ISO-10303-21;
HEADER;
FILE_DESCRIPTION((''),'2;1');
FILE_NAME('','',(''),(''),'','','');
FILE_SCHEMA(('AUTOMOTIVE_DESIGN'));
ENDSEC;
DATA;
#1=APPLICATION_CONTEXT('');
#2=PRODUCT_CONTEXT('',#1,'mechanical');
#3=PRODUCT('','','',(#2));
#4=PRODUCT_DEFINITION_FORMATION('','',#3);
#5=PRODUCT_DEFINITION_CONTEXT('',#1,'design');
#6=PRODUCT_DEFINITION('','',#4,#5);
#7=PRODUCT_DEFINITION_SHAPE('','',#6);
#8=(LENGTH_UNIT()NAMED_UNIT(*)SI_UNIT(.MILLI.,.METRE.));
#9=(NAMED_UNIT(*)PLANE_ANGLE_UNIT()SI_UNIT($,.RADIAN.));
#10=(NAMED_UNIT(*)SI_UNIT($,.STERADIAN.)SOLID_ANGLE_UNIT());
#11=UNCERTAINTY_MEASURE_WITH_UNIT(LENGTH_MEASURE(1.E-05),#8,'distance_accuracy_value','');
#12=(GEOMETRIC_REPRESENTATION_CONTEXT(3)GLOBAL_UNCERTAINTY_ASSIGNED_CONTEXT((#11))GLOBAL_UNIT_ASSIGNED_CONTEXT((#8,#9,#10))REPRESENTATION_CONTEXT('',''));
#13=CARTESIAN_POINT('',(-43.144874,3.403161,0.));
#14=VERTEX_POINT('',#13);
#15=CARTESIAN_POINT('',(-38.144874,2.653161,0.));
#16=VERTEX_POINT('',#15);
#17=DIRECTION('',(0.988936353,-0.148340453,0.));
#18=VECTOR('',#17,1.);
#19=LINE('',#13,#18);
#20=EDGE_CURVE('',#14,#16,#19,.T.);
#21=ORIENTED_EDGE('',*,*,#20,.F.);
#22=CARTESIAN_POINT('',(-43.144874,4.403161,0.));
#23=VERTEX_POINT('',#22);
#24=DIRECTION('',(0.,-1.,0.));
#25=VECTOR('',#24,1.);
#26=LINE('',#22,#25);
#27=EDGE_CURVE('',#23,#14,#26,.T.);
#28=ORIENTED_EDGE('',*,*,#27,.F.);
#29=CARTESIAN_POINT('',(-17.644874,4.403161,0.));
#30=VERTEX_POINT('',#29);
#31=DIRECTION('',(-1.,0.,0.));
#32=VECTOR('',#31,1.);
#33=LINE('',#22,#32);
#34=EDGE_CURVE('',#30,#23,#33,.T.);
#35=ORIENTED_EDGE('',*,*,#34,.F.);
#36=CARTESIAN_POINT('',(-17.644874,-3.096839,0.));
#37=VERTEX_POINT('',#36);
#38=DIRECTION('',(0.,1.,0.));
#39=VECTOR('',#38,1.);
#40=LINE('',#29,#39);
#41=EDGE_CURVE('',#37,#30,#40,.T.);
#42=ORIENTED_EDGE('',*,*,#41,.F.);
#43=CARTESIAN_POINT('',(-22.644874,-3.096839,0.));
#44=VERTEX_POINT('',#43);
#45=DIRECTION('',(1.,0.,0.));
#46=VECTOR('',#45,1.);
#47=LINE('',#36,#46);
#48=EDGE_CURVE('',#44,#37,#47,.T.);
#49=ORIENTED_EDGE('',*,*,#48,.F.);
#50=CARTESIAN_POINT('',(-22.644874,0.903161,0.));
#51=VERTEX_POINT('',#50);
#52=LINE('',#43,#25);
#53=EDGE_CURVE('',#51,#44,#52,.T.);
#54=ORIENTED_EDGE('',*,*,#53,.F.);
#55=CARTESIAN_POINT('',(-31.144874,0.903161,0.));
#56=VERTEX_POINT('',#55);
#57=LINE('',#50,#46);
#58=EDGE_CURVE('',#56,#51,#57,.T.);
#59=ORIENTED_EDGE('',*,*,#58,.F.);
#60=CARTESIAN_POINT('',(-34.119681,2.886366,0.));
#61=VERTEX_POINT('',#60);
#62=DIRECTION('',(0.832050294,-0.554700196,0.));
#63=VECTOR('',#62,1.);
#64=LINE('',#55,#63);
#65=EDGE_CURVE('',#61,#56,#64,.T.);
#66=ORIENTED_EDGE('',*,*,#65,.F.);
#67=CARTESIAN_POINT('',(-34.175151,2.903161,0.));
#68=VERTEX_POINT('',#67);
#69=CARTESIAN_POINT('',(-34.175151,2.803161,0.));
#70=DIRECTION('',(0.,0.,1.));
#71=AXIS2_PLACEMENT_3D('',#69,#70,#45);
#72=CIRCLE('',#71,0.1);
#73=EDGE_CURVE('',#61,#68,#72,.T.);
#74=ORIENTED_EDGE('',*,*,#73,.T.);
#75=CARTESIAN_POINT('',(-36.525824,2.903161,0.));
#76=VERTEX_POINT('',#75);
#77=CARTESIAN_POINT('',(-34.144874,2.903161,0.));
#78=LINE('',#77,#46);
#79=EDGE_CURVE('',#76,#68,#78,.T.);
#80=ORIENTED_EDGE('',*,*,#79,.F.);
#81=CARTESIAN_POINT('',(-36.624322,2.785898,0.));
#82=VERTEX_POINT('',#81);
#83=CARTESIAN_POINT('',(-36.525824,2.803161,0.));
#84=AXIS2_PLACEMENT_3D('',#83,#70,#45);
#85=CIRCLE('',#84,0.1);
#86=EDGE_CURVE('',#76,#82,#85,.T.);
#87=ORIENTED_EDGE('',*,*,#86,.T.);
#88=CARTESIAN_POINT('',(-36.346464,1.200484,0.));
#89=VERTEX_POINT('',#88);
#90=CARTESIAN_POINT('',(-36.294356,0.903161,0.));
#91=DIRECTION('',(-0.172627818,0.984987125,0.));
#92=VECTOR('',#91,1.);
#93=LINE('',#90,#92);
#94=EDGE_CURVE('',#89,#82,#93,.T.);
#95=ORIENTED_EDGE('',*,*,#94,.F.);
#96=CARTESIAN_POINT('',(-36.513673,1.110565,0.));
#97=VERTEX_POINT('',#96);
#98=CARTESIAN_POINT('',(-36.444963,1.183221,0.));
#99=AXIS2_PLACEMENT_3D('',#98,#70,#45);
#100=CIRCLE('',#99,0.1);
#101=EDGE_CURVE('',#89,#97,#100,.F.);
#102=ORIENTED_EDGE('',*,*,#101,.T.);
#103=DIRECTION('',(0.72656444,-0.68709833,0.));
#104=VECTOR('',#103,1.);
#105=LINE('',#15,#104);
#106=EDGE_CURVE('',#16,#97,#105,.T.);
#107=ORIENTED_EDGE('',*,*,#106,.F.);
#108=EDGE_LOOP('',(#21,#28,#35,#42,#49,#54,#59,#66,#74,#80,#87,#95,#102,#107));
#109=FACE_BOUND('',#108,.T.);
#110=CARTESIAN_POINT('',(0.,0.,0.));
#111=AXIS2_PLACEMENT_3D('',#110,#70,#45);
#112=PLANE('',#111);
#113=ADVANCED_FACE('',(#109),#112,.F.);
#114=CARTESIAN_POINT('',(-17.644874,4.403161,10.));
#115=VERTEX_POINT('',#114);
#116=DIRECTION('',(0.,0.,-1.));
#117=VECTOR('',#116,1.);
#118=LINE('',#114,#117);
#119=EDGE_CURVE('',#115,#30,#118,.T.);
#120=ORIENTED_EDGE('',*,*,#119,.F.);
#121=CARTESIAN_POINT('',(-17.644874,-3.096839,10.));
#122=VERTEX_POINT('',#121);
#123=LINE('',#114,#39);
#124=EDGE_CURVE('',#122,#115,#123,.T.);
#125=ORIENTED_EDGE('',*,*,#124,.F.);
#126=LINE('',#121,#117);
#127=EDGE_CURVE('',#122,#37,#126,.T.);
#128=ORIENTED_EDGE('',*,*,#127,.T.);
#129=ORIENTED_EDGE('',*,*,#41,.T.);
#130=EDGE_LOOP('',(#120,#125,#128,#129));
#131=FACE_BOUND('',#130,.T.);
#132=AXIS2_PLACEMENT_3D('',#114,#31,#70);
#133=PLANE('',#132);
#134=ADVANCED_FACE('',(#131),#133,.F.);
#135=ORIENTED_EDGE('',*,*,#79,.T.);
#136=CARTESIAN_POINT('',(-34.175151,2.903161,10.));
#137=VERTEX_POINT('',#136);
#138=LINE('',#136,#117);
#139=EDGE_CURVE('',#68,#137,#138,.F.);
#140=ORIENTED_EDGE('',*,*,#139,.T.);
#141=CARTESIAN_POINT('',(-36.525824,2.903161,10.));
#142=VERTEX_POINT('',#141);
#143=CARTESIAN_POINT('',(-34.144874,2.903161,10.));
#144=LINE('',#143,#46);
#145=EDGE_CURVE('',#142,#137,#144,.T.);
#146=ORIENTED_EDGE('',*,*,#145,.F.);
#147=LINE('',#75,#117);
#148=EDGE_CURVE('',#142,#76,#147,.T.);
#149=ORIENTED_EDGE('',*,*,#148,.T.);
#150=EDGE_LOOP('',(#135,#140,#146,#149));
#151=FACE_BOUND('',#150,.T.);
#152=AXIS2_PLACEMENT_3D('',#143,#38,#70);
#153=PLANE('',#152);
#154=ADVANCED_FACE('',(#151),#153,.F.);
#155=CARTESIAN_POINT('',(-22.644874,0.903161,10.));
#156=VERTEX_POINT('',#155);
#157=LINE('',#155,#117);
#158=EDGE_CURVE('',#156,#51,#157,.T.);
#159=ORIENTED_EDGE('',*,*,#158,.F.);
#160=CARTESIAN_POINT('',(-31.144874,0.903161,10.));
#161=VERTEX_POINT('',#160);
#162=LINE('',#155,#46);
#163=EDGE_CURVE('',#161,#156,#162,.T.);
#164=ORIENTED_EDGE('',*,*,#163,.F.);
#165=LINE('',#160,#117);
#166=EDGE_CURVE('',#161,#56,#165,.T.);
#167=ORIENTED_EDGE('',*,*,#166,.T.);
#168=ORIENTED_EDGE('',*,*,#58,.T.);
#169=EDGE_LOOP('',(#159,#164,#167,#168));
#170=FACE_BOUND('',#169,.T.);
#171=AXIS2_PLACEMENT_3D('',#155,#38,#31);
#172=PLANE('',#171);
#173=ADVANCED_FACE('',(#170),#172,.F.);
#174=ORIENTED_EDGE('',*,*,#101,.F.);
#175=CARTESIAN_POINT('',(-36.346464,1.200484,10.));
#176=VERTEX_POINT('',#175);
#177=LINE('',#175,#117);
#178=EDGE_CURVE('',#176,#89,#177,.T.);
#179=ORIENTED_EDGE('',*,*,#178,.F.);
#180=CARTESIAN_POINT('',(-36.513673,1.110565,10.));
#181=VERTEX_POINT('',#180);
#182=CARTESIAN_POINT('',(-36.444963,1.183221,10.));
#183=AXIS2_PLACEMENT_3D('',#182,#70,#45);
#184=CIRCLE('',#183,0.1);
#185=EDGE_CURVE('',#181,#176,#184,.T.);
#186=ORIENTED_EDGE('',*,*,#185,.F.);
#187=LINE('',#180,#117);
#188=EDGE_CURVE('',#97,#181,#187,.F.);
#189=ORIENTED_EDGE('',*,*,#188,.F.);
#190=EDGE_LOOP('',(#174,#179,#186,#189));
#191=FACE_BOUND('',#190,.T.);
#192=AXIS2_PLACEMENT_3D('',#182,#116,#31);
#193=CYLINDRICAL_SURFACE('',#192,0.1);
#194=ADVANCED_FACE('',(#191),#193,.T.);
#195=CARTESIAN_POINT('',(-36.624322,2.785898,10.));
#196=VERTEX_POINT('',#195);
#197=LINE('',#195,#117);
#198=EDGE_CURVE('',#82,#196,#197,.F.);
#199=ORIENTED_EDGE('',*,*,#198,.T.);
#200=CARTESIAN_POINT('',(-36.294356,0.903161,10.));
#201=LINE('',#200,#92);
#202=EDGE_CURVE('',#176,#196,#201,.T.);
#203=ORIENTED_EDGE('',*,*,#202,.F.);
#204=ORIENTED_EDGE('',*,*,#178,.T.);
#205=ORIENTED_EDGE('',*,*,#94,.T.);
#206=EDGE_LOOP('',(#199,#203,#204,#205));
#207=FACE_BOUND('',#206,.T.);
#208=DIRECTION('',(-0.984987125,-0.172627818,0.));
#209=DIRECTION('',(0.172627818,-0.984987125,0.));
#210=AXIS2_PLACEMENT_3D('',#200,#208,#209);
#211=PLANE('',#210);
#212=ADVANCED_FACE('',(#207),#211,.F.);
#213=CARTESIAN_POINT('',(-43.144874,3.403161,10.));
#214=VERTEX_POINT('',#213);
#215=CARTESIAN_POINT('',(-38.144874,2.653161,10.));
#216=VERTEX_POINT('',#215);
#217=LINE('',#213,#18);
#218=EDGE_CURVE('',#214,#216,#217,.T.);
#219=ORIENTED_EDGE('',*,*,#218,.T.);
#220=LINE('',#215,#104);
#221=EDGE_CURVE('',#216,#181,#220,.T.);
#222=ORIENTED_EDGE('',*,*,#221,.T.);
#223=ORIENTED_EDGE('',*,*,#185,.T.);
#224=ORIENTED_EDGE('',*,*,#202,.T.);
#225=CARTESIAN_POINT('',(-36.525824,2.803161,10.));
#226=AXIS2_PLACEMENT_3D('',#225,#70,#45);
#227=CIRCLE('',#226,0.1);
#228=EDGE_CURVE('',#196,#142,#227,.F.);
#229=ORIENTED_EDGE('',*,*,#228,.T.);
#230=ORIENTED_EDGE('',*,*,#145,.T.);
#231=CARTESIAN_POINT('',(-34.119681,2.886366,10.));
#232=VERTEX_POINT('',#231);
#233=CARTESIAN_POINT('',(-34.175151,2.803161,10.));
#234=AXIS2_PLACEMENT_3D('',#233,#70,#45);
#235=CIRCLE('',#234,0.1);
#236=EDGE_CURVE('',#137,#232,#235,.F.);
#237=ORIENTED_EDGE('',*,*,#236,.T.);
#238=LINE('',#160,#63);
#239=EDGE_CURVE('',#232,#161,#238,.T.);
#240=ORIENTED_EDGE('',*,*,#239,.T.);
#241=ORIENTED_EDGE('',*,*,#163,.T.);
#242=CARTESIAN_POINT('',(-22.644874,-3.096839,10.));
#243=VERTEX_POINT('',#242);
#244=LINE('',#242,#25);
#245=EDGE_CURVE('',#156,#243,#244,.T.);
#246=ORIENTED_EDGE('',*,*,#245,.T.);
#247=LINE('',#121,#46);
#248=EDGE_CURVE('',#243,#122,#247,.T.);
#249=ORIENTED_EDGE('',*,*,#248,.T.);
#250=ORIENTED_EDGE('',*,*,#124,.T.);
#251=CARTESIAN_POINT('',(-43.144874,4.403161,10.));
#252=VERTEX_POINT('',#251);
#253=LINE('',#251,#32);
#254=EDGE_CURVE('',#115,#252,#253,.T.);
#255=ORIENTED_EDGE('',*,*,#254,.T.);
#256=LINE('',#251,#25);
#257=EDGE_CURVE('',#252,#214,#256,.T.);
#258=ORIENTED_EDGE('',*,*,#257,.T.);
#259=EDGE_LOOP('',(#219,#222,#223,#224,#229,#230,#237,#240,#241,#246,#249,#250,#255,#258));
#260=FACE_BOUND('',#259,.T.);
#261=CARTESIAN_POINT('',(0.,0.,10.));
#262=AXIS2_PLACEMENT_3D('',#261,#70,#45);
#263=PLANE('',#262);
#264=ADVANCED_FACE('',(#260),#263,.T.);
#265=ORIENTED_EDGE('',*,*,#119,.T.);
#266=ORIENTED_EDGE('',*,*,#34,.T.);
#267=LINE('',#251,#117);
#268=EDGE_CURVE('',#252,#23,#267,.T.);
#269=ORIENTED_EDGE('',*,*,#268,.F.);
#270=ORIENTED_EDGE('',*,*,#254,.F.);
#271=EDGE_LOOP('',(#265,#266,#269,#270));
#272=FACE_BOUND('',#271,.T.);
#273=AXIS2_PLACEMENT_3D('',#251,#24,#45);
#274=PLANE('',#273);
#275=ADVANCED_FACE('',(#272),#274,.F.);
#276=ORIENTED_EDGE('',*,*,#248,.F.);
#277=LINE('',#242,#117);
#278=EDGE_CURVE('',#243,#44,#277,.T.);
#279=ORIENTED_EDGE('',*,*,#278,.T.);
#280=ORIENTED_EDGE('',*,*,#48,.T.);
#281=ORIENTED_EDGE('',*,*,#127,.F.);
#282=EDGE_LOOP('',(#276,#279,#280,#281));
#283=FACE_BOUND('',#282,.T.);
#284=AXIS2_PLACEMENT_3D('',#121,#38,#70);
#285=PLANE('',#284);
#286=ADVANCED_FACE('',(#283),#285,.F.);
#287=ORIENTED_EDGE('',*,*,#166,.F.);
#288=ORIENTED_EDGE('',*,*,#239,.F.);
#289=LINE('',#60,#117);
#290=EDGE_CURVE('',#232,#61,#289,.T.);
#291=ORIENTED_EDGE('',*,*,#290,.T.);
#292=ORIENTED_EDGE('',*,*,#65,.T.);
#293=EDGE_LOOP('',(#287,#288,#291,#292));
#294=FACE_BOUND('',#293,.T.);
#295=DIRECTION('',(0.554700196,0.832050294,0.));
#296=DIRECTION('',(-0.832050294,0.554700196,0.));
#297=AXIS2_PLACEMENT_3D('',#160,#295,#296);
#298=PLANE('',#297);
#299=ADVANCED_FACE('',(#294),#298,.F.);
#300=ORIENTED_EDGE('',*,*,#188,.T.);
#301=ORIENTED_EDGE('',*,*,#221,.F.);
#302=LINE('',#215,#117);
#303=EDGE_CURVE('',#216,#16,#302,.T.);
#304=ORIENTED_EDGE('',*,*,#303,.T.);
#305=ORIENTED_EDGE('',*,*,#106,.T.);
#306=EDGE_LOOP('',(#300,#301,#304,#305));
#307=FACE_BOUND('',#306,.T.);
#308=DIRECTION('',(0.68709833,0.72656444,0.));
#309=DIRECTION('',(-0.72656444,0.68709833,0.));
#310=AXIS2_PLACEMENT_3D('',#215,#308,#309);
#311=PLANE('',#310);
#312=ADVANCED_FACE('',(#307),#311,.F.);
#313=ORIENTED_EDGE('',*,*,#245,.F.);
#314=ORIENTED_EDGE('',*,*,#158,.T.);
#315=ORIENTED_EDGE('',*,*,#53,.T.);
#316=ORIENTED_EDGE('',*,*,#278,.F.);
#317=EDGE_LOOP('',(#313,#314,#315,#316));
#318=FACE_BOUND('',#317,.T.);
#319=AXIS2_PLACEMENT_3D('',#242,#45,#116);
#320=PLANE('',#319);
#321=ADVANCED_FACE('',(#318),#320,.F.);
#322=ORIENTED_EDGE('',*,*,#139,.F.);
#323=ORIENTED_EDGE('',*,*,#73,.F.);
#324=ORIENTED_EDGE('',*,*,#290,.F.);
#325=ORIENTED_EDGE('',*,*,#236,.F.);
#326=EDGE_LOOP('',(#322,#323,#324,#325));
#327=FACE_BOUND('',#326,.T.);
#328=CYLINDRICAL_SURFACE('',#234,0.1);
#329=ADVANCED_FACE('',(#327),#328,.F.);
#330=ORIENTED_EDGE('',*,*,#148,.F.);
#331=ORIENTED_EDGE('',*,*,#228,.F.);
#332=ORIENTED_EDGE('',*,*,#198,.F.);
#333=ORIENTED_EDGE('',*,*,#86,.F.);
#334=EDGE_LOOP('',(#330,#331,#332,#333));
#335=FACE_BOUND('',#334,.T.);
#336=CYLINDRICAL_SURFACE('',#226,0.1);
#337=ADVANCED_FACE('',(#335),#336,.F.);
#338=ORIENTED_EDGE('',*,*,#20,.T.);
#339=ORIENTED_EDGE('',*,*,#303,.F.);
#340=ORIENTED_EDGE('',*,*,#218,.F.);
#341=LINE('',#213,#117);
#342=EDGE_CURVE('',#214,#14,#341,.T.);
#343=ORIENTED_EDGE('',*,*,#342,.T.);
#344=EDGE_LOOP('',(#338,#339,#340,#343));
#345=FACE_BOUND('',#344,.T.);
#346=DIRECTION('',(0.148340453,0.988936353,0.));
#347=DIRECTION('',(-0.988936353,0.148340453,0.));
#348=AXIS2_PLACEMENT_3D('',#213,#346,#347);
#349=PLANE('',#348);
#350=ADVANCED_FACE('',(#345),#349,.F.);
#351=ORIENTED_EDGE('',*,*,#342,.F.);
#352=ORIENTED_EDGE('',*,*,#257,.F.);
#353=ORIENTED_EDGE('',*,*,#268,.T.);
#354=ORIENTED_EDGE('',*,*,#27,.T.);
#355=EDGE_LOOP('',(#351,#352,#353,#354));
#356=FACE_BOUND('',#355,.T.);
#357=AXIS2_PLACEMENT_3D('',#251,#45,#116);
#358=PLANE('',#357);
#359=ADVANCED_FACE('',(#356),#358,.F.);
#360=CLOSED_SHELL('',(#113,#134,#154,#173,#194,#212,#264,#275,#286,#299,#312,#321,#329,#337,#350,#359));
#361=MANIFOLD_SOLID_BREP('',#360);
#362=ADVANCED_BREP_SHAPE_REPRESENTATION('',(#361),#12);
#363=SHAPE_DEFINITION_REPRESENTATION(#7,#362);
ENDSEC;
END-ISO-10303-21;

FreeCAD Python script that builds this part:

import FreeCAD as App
import Part
import Sketcher

V = App.Vector


def edges_at(feature, points):
    """Names of the edges that pass closest to the given points."""
    edges = feature.Shape.Edges
    near = lambda p: min(range(len(edges)), key=lambda i: edges[i].distToShape(Part.Vertex(*p))[0])
    return sorted({f"Edge{near(p) + 1}" for p in points})

doc = App.newDocument("Part")
body = doc.addObject("PartDesign::Body", "Body")

# Sketch on XY plane
sketch1 = doc.addObject("Sketcher::SketchObject", "Sketch")
body.addObject(sketch1)
sketch1.AttachmentSupport = (doc.XY_Plane, [""])
sketch1.MapMode = "FlatFace"
sketch1.addGeometry([
    Part.LineSegment(V(-22.6, -3.1, 0), V(-17.6, -3.1, 0)),  # 0
    Part.LineSegment(V(-17.6, -3.1, 0), V(-17.6, 4.4, 0)),  # 1
    Part.LineSegment(V(-17.6, 4.4, 0), V(-43.1, 4.4, 0)),  # 2
    Part.LineSegment(V(-43.1, 4.4, 0), V(-43.1, 3.4, 0)),  # 3
    Part.LineSegment(V(-43.1, 3.4, 0), V(-38.1, 2.7, 0)),  # 4
    Part.LineSegment(V(-38.1, 2.7, 0), V(-36.3, 0.9, 0)),  # 5
    Part.LineSegment(V(-36.3, 0.9, 0), V(-36.6, 2.9, 0)),  # 6
    Part.LineSegment(V(-36.6, 2.9, 0), V(-34.1, 2.9, 0)),  # 7
    Part.LineSegment(V(-34.1, 2.9, 0), V(-31.1, 0.9, 0)),  # 8
    Part.LineSegment(V(-31.1, 0.9, 0), V(-22.6, 0.9, 0)),  # 9
    Part.LineSegment(V(-22.6, 0.9, 0), V(-22.6, -3.1, 0)),  # 10
], False)
sketch1.addConstraint([
    Sketcher.Constraint("Coincident", 0, 2, 1, 1),
    Sketcher.Constraint("Coincident", 1, 2, 2, 1),
    Sketcher.Constraint("Coincident", 2, 2, 3, 1),
    Sketcher.Constraint("Coincident", 3, 2, 4, 1),
    Sketcher.Constraint("Coincident", 4, 2, 5, 1),
    Sketcher.Constraint("Coincident", 5, 2, 6, 1),
    Sketcher.Constraint("Coincident", 6, 2, 7, 1),
    Sketcher.Constraint("Coincident", 7, 2, 8, 1),
    Sketcher.Constraint("Coincident", 8, 2, 9, 1),
    Sketcher.Constraint("Coincident", 9, 2, 10, 1),
    Sketcher.Constraint("Coincident", 10, 2, 0, 1),
    Sketcher.Constraint("Horizontal", 0),
    Sketcher.Constraint("Vertical", 1),
    Sketcher.Constraint("Horizontal", 2),
    Sketcher.Constraint("Vertical", 3),
    Sketcher.Constraint("Horizontal", 7),
    Sketcher.Constraint("Horizontal", 9),
    Sketcher.Constraint("Vertical", 10),
    Sketcher.Constraint("Horizontal", 5, 2, 8, 2),
    Sketcher.Constraint("DistanceX", 0, 1, 0, 2, 5.0),
    Sketcher.Constraint("DistanceY", 3, 2, 3, 1, 1.0),
    Sketcher.Constraint("DistanceY", 10, 2, 10, 1, 4.0),
    Sketcher.Constraint("DistanceX", 2, 2, 2, 1, 25.5),
    Sketcher.Constraint("DistanceX", 7, 1, 7, 2, 2.5),
    Sketcher.Constraint("DistanceX", 9, 1, 9, 2, 8.5),
    Sketcher.Constraint("DistanceY", 1, 1, 1, 2, 7.5),
    Sketcher.Constraint("DistanceX", 3, 2, 4, 2, 5.0),
    Sketcher.Constraint("DistanceY", 5, 2, 6, 2, 2.0),
    Sketcher.Constraint("DistanceX", 6, 2, 1, 2, 19.0),
    Sketcher.Constraint("DistanceY", 4, 2, 3, 2, 0.75),
    Sketcher.Constraint("DistanceY", 0, 2, -1, 1, 3.096839),
    Sketcher.Constraint("Distance", 5, 2.546943),
    Sketcher.Constraint("DistanceX", 0, 2, -1, 1, 17.644874),
])
pad1 = doc.addObject("PartDesign::Pad", "Pad")
body.addObject(pad1)
pad1.Profile = sketch1
pad1.Length = 10
doc.recompute()

fillet = doc.addObject("PartDesign::Fillet", "Fillet")
body.addObject(fillet)
fillet.Base = (pad1, edges_at(pad1, [(-34.145, 2.903, 5), (-36.645, 2.903, 5), (-36.294, 0.903, 5)]))
fillet.Radius = 0.1

doc.recompute()
